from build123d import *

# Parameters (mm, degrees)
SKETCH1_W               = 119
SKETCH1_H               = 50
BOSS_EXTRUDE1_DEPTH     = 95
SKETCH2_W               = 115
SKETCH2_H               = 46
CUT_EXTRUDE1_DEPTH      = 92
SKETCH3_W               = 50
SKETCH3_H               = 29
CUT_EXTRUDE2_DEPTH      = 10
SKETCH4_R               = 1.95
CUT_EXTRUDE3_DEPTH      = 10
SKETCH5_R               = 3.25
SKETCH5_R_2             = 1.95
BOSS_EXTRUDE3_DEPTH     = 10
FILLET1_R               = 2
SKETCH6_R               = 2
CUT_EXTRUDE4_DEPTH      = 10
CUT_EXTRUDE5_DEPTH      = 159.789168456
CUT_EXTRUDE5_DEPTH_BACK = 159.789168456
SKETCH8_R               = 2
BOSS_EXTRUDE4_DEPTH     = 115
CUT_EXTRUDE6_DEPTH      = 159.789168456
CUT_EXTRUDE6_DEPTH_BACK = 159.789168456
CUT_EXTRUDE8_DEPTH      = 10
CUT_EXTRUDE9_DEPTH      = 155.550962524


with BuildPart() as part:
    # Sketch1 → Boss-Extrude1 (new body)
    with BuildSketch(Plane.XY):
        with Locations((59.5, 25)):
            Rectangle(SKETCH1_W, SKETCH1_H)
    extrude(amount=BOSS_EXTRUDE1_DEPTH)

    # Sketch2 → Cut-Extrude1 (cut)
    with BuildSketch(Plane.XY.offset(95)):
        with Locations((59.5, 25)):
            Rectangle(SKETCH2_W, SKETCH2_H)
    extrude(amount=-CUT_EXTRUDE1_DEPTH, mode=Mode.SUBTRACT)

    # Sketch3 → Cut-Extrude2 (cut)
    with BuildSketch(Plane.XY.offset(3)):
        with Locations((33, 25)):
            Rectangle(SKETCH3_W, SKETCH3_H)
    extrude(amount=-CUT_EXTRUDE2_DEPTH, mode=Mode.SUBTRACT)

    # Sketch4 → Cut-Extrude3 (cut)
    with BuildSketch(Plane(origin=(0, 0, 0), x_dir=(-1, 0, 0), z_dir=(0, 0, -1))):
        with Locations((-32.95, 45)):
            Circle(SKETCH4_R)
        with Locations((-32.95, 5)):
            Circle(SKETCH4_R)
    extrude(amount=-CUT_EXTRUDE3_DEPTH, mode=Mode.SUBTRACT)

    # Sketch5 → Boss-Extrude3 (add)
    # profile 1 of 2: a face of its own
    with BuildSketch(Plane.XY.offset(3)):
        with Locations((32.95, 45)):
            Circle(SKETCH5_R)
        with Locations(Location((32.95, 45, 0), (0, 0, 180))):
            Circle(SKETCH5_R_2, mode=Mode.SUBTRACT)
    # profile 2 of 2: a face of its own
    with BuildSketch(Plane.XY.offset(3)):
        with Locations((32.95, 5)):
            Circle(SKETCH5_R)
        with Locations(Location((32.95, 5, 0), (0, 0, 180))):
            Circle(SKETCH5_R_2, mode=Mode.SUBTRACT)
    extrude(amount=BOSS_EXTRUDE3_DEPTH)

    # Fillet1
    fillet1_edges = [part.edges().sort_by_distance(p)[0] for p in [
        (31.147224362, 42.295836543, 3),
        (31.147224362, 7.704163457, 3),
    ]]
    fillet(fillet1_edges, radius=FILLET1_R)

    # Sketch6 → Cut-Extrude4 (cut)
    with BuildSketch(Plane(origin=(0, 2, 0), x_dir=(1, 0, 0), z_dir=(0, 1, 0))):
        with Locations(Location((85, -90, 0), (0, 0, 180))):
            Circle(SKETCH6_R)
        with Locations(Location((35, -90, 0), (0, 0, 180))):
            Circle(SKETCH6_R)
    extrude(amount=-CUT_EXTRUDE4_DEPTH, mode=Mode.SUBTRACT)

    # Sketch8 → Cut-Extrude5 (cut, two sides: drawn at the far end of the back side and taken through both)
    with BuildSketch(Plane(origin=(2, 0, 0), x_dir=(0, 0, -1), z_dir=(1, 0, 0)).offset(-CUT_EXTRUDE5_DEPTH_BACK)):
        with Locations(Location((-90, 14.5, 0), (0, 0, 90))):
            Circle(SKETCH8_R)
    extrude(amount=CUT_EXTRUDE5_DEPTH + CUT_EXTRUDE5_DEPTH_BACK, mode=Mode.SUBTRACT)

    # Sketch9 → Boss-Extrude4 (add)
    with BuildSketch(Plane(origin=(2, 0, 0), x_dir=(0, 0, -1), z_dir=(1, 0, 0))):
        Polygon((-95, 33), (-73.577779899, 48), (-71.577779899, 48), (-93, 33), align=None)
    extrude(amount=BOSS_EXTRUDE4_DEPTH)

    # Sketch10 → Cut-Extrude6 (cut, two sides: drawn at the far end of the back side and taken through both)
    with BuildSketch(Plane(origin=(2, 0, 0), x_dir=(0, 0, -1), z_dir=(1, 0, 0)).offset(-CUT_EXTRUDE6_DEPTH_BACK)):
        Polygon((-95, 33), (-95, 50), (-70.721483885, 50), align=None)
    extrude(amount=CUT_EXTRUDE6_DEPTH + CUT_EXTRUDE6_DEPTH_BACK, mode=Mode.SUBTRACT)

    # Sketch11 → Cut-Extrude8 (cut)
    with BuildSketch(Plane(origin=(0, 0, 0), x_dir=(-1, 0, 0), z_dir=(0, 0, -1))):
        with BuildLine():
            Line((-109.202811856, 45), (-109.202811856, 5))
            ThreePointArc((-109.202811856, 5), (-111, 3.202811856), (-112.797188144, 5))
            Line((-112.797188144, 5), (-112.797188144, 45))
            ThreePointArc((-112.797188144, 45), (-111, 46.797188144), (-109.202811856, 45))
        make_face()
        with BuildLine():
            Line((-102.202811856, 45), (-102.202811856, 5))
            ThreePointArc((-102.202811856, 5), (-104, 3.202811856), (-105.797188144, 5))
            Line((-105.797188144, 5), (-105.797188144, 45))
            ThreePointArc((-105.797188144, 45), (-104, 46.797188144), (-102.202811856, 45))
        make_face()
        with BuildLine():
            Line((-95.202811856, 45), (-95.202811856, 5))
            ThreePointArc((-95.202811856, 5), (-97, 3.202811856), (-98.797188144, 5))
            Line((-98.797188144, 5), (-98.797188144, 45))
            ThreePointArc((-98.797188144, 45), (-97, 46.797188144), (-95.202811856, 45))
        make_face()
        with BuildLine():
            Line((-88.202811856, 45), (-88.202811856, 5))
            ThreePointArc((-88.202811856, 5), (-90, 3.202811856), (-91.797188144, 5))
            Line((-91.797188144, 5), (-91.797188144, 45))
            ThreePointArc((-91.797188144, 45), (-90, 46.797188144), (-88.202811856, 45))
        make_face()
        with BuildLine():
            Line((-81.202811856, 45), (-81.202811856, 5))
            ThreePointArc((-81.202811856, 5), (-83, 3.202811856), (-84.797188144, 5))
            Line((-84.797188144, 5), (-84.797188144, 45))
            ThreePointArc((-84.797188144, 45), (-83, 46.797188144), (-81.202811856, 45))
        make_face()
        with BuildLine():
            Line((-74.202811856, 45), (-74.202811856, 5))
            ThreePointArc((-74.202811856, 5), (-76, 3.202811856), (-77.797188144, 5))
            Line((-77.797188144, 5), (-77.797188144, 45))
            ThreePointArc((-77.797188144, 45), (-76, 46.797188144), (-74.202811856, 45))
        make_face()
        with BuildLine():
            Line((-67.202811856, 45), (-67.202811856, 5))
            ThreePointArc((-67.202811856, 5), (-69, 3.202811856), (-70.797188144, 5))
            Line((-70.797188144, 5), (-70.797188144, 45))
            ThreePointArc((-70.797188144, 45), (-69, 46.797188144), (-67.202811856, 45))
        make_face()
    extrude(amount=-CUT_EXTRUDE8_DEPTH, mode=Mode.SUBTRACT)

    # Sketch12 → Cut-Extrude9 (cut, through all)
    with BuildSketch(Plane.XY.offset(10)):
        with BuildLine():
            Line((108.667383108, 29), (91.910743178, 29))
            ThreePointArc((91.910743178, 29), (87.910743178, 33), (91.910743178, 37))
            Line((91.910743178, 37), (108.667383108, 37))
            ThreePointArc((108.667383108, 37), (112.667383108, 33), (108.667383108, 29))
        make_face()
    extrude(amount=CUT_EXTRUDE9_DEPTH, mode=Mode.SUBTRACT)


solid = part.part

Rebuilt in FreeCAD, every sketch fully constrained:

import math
import FreeCAD as App
import Part
import Sketcher
from FreeCAD import Vector
Q = App.Units.Quantity


def edges_at(feature, points):
    """Names of the edges that pass closest to the given points."""
    edges = feature.Shape.Edges
    near = lambda p: min(range(len(edges)), key=lambda i: edges[i].distToShape(Part.Vertex(*p))[0])
    return sorted({f"Edge{near(p) + 1}" for p in points})


def add_polygon(sketch, points):
    """Adds a closed chain of lines whose ends are joined by coincident constraints."""
    first, n = sketch.GeometryCount, len(points)
    for a, b in zip(points, points[1:] + points[:1]):
        sketch.addGeometry(Part.LineSegment(App.Vector(*a, 0), App.Vector(*b, 0)), False)
    for i in range(n):
        sketch.addConstraint(Sketcher.Constraint("Coincident", first + i, 2, first + (i + 1) % n, 1))

doc = App.newDocument("Part")
body = doc.addObject("PartDesign::Body", "Body")

# Sketch on XY plane
sketch1 = doc.addObject("Sketcher::SketchObject", "Sketch")
body.addObject(sketch1)
sketch1.AttachmentSupport = (doc.XY_Plane, [""])
sketch1.MapMode = "FlatFace"
add_polygon(sketch1, [(0, 50), (0, 0), (119, 0), (119, 50)])  # lines 0-3
sketch1.addConstraint([
    Sketcher.Constraint("Vertical", 0),
    Sketcher.Constraint("Horizontal", 1),
    Sketcher.Constraint("Vertical", 2),
    Sketcher.Constraint("Horizontal", 3),
    Sketcher.Constraint("Coincident", 0, 2, -1, 1),
    Sketcher.Constraint("DistanceX", 1, 1, 1, 2, Q("119 mm")),
    Sketcher.Constraint("DistanceY", 0, 2, 0, 1, Q("50 mm")),
])
pad1 = doc.addObject("PartDesign::Pad", "Pad")
body.addObject(pad1)
pad1.Profile = sketch1
pad1.Length = 95

# Sketch on XY plane
sketch2 = doc.addObject("Sketcher::SketchObject", "Sketch001")
body.addObject(sketch2)
sketch2.AttachmentSupport = (doc.XY_Plane, [""])
sketch2.MapMode = "FlatFace"
sketch2.AttachmentOffset = App.Placement(Vector(0, 0, 95), App.Rotation())
add_polygon(sketch2, [(2, 48), (2, 2), (117, 2), (117, 48)])  # lines 0-3
sketch2.addConstraint([
    Sketcher.Constraint("Vertical", 0),
    Sketcher.Constraint("Horizontal", 1),
    Sketcher.Constraint("Vertical", 2),
    Sketcher.Constraint("Horizontal", 3),
    Sketcher.Constraint("DistanceX", 1, 1, 1, 2, Q("115 mm")),
    Sketcher.Constraint("DistanceY", 0, 2, 0, 1, Q("46 mm")),
    Sketcher.Constraint("DistanceX", -1, 1, 0, 2, Q("2 mm")),
    Sketcher.Constraint("DistanceY", -1, 1, 0, 2, Q("2 mm")),
])
pocket1 = doc.addObject("PartDesign::Pocket", "Pocket")
body.addObject(pocket1)
pocket1.Profile = sketch2
pocket1.Length = 92

# Sketch on XY plane
sketch3 = doc.addObject("Sketcher::SketchObject", "Sketch002")
body.addObject(sketch3)
sketch3.AttachmentSupport = (doc.XY_Plane, [""])
sketch3.MapMode = "FlatFace"
sketch3.AttachmentOffset = App.Placement(Vector(0, 0, 3), App.Rotation())
add_polygon(sketch3, [(8, 40), (8, 10), (58, 10), (58, 40)])  # lines 0-3
sketch3.addConstraint([
    Sketcher.Constraint("Vertical", 0),
    Sketcher.Constraint("Horizontal", 1),
    Sketcher.Constraint("Vertical", 2),
    Sketcher.Constraint("Horizontal", 3),
    Sketcher.Constraint("DistanceX", 1, 1, 1, 2, Q("50 mm")),
    Sketcher.Constraint("DistanceY", 0, 2, 0, 1, Q("29 mm")),
    Sketcher.Constraint("DistanceX", -1, 1, 0, 2, Q("8 mm")),
    Sketcher.Constraint("DistanceY", -1, 1, 0, 2, Q("10.5 mm")),
])
pocket2 = doc.addObject("PartDesign::Pocket", "Pocket001")
body.addObject(pocket2)
pocket2.Profile = sketch3
pocket2.Length = 10

# Sketch on XY plane
sketch4 = doc.addObject("Sketcher::SketchObject", "Sketch003")
body.addObject(sketch4)
sketch4.AttachmentSupport = (doc.XY_Plane, [""])
sketch4.MapMode = "FlatFace"
sketch4.addGeometry([
    Part.Circle(Vector(33, 45, 0), Vector(0, 0, 1), 1.9),
    Part.Circle(Vector(33, 5, 0), Vector(0, 0, 1), 1.9),
], False)
sketch4.addConstraint([
    Sketcher.Constraint("Equal", 0, 1),
    Sketcher.Constraint("Vertical", 0, 3, 1, 3),
    Sketcher.Constraint("Diameter", 0, Q("3.9 mm")),
    Sketcher.Constraint("DistanceY", -1, 1, 0, 3, Q("45 mm")),
    Sketcher.Constraint("DistanceY", -1, 1, 1, 3, Q("5 mm")),
    Sketcher.Constraint("DistanceX", -1, 1, 0, 3, Q("32.95 mm")),
])
pocket3 = doc.addObject("PartDesign::Pocket", "Pocket002")
body.addObject(pocket3)
pocket3.Profile = sketch4
pocket3.Length = 10
pocket3.Reversed = True

# Sketch on XY plane
sketch5 = doc.addObject("Sketcher::SketchObject", "Sketch004")
body.addObject(sketch5)
sketch5.AttachmentSupport = (doc.XY_Plane, [""])
sketch5.MapMode = "FlatFace"
sketch5.AttachmentOffset = App.Placement(Vector(0, 0, 3), App.Rotation())
sketch5.addGeometry([
    Part.Circle(Vector(33, 45, 0), Vector(0, 0, 1), 3.2),
    Part.Circle(Vector(33, 45, 0), Vector(0, 0, 1), 1.9),
    Part.Circle(Vector(33, 5, 0), Vector(0, 0, 1), 3.2),
    Part.Circle(Vector(33, 5, 0), Vector(0, 0, 1), 1.9),
], False)
sketch5.addConstraint([
    Sketcher.Constraint("Coincident", 1, 3, 0, 3),
    Sketcher.Constraint("Coincident", 3, 3, 2, 3),
    Sketcher.Constraint("Equal", 0, 2),
    Sketcher.Constraint("Equal", 1, 3),
    Sketcher.Constraint("Vertical", 1, 3, 2, 3),
    Sketcher.Constraint("Diameter", 0, Q("6.5 mm")),
    Sketcher.Constraint("Diameter", 1, Q("3.9 mm")),
    Sketcher.Constraint("DistanceY", -1, 1, 0, 3, Q("45 mm")),
    Sketcher.Constraint("DistanceY", -1, 1, 2, 3, Q("5 mm")),
    Sketcher.Constraint("DistanceX", -1, 1, 0, 3, Q("32.95 mm")),
])
pad2 = doc.addObject("PartDesign::Pad", "Pad001")
body.addObject(pad2)
pad2.Profile = sketch5
pad2.Length = 10
doc.recompute()

fillet = doc.addObject("PartDesign::Fillet", "Fillet")
body.addObject(fillet)
fillet.Base = (pad2, edges_at(pad2, [(32.95, 41.75, 3), (32.95, 8.25, 3)]))
fillet.Radius = 2

# Sketch on XZ plane
sketch6 = doc.addObject("Sketcher::SketchObject", "Sketch005")
body.addObject(sketch6)
sketch6.AttachmentSupport = (doc.XZ_Plane, [""])
sketch6.MapMode = "FlatFace"
sketch6.AttachmentOffset = App.Placement(Vector(0, 0, -2), App.Rotation())
sketch6.addGeometry([
    Part.Circle(Vector(85, 90, 0), Vector(0, 0, 1), 2),
    Part.Circle(Vector(35, 90, 0), Vector(0, 0, 1), 2),
], False)
sketch6.addConstraint([
    Sketcher.Constraint("Equal", 0, 1),
    Sketcher.Constraint("Horizontal", 0, 3, 1, 3),
    Sketcher.Constraint("Diameter", 0, Q("4 mm")),
    Sketcher.Constraint("DistanceX", -1, 1, 0, 3, Q("85 mm")),
    Sketcher.Constraint("DistanceY", -1, 1, 0, 3, Q("90 mm")),
    Sketcher.Constraint("DistanceX", -1, 1, 1, 3, Q("35 mm")),
])
pocket4 = doc.addObject("PartDesign::Pocket", "Pocket003")
body.addObject(pocket4)
pocket4.Profile = sketch6
pocket4.Length = 10
pocket4.Reversed = True

# Sketch on YZ plane
sketch7 = doc.addObject("Sketcher::SketchObject", "Sketch006")
body.addObject(sketch7)
sketch7.AttachmentSupport = (doc.YZ_Plane, [""])
sketch7.MapMode = "FlatFace"
sketch7.AttachmentOffset = App.Placement(Vector(0, 0, 2), App.Rotation())
sketch7.addGeometry(Part.Circle(Vector(14.5, 90, 0), Vector(0, 0, 1), 2), False)
sketch7.addConstraint([
    Sketcher.Constraint("Diameter", 0, Q("4 mm")),
    Sketcher.Constraint("DistanceY", -1, 1, 0, 3, Q("90 mm")),
    Sketcher.Constraint("DistanceX", -1, 1, 0, 3, Q("14.5 mm")),
])
pocket5 = doc.addObject("PartDesign::Pocket", "Pocket004")
body.addObject(pocket5)
pocket5.Profile = sketch7
pocket5.Type = "ThroughAll"
pocket5.Midplane = True

# Sketch on YZ plane
sketch8 = doc.addObject("Sketcher::SketchObject", "Sketch007")
body.addObject(sketch8)
sketch8.AttachmentSupport = (doc.YZ_Plane, [""])
sketch8.MapMode = "FlatFace"
sketch8.AttachmentOffset = App.Placement(Vector(0, 0, 2), App.Rotation())
add_polygon(sketch8, [(48, 73.6), (33, 95), (33, 93), (48, 71.6)])  # lines 0-3
sketch8.addConstraint([
    Sketcher.Constraint("Vertical", 1),
    Sketcher.Constraint("Vertical", 3),
    Sketcher.Constraint("Parallel", 0, 2),
    Sketcher.Constraint("DistanceY", 1, 2, 1, 1, Q("2 mm")),
    Sketcher.Constraint("Angle", 0, Q("125 deg")),
    Sketcher.Constraint("DistanceX", -1, 1, 0, 2, Q("33 mm")),
    Sketcher.Constraint("DistanceY", -1, 1, 0, 2, Q("95 mm")),
    Sketcher.Constraint("DistanceX", -1, 1, 2, 2, Q("48 mm")),
])
pad3 = doc.addObject("PartDesign::Pad", "Pad002")
body.addObject(pad3)
pad3.Profile = sketch8
pad3.Length = 115

# Sketch on YZ plane
sketch9 = doc.addObject("Sketcher::SketchObject", "Sketch008")
body.addObject(sketch9)
sketch9.AttachmentSupport = (doc.YZ_Plane, [""])
sketch9.MapMode = "FlatFace"
sketch9.AttachmentOffset = App.Placement(Vector(0, 0, 2), App.Rotation())
add_polygon(sketch9, [(50, 95), (33, 95), (50, 71)])  # lines 0-2
sketch9.addConstraint([
    Sketcher.Constraint("Horizontal", 0),
    Sketcher.Constraint("Vertical", 2),
    Sketcher.Constraint("DistanceX", 0, 2, 0, 1, Q("17 mm")),
    Sketcher.Constraint("Angle", 1, Q("-55 deg")),
    Sketcher.Constraint("DistanceX", -1, 1, 0, 2, Q("33 mm")),
    Sketcher.Constraint("DistanceY", -1, 1, 0, 2, Q("95 mm")),
])
pocket6 = doc.addObject("PartDesign::Pocket", "Pocket005")
body.addObject(pocket6)
pocket6.Profile = sketch9
pocket6.Type = "ThroughAll"
pocket6.Midplane = True

# Sketch on XY plane
sketch10 = doc.addObject("Sketcher::SketchObject", "Sketch009")
body.addObject(sketch10)
sketch10.AttachmentSupport = (doc.XY_Plane, [""])
sketch10.MapMode = "FlatFace"
sketch10.addGeometry([
    Part.LineSegment(Vector(109.2, 5, 0), Vector(109.2, 45, 0)),  # 0
    Part.ArcOfCircle(Part.Circle(Vector(111, 45, 0), Vector(0, 0, 1), 1.8), math.radians(0), math.radians(180)),  # 1
    Part.LineSegment(Vector(112.8, 45, 0), Vector(112.8, 5, 0)),  # 2
    Part.ArcOfCircle(Part.Circle(Vector(111, 5, 0), Vector(0, 0, 1), 1.8), math.radians(180), math.radians(360)),  # 3
    Part.LineSegment(Vector(102.2, 5, 0), Vector(102.2, 45, 0)),  # 4
    Part.ArcOfCircle(Part.Circle(Vector(104, 45, 0), Vector(0, 0, 1), 1.8), math.radians(0), math.radians(180)),  # 5
    Part.LineSegment(Vector(105.8, 45, 0), Vector(105.8, 5, 0)),  # 6
    Part.ArcOfCircle(Part.Circle(Vector(104, 5, 0), Vector(0, 0, 1), 1.8), math.radians(180), math.radians(360)),  # 7
    Part.LineSegment(Vector(95.2, 5, 0), Vector(95.2, 45, 0)),  # 8
    Part.ArcOfCircle(Part.Circle(Vector(97, 45, 0), Vector(0, 0, 1), 1.8), math.radians(0), math.radians(180)),  # 9
    Part.LineSegment(Vector(98.8, 45, 0), Vector(98.8, 5, 0)),  # 10
    Part.ArcOfCircle(Part.Circle(Vector(97, 5, 0), Vector(0, 0, 1), 1.8), math.radians(180), math.radians(360)),  # 11
    Part.LineSegment(Vector(88.2, 5, 0), Vector(88.2, 45, 0)),  # 12
    Part.ArcOfCircle(Part.Circle(Vector(90, 45, 0), Vector(0, 0, 1), 1.8), math.radians(0), math.radians(180)),  # 13
    Part.LineSegment(Vector(91.8, 45, 0), Vector(91.8, 5, 0)),  # 14
    Part.ArcOfCircle(Part.Circle(Vector(90, 5, 0), Vector(0, 0, 1), 1.8), math.radians(180), math.radians(360)),  # 15
    Part.LineSegment(Vector(81.2, 5, 0), Vector(81.2, 45, 0)),  # 16
    Part.ArcOfCircle(Part.Circle(Vector(83, 45, 0), Vector(0, 0, 1), 1.8), math.radians(0), math.radians(180)),  # 17
    Part.LineSegment(Vector(84.8, 45, 0), Vector(84.8, 5, 0)),  # 18
    Part.ArcOfCircle(Part.Circle(Vector(83, 5, 0), Vector(0, 0, 1), 1.8), math.radians(180), math.radians(360)),  # 19
    Part.LineSegment(Vector(74.2, 5, 0), Vector(74.2, 45, 0)),  # 20
    Part.ArcOfCircle(Part.Circle(Vector(76, 45, 0), Vector(0, 0, 1), 1.8), math.radians(0), math.radians(180)),  # 21
    Part.LineSegment(Vector(77.8, 45, 0), Vector(77.8, 5, 0)),  # 22
    Part.ArcOfCircle(Part.Circle(Vector(76, 5, 0), Vector(0, 0, 1), 1.8), math.radians(180), math.radians(360)),  # 23
    Part.LineSegment(Vector(67.2, 5, 0), Vector(67.2, 45, 0)),  # 24
    Part.ArcOfCircle(Part.Circle(Vector(69, 45, 0), Vector(0, 0, 1), 1.8), math.radians(0), math.radians(180)),  # 25
    Part.LineSegment(Vector(70.8, 45, 0), Vector(70.8, 5, 0)),  # 26
    Part.ArcOfCircle(Part.Circle(Vector(69, 5, 0), Vector(0, 0, 1), 1.8), math.radians(180), math.radians(360)),  # 27
], False)
sketch10.addConstraint([
    Sketcher.Constraint("Tangent", 0, 2, 1, 2),
    Sketcher.Constraint("Tangent", 1, 1, 2, 1),
    Sketcher.Constraint("Tangent", 2, 2, 3, 2),
    Sketcher.Constraint("Tangent", 3, 1, 0, 1),
    Sketcher.Constraint("Tangent", 4, 2, 5, 2),
    Sketcher.Constraint("Tangent", 5, 1, 6, 1),
    Sketcher.Constraint("Tangent", 6, 2, 7, 2),
    Sketcher.Constraint("Tangent", 7, 1, 4, 1),
    Sketcher.Constraint("Tangent", 8, 2, 9, 2),
    Sketcher.Constraint("Tangent", 9, 1, 10, 1),
    Sketcher.Constraint("Tangent", 10, 2, 11, 2),
    Sketcher.Constraint("Tangent", 11, 1, 8, 1),
    Sketcher.Constraint("Tangent", 12, 2, 13, 2),
    Sketcher.Constraint("Tangent", 13, 1, 14, 1),
    Sketcher.Constraint("Tangent", 14, 2, 15, 2),
    Sketcher.Constraint("Tangent", 15, 1, 12, 1),
    Sketcher.Constraint("Tangent", 16, 2, 17, 2),
    Sketcher.Constraint("Tangent", 17, 1, 18, 1),
    Sketcher.Constraint("Tangent", 18, 2, 19, 2),
    Sketcher.Constraint("Tangent", 19, 1, 16, 1),
    Sketcher.Constraint("Tangent", 20, 2, 21, 2),
    Sketcher.Constraint("Tangent", 21, 1, 22, 1),
    Sketcher.Constraint("Tangent", 22, 2, 23, 2),
    Sketcher.Constraint("Tangent", 23, 1, 20, 1),
    Sketcher.Constraint("Tangent", 24, 2, 25, 2),
    Sketcher.Constraint("Tangent", 25, 1, 26, 1),
    Sketcher.Constraint("Tangent", 26, 2, 27, 2),
    Sketcher.Constraint("Tangent", 27, 1, 24, 1),
    Sketcher.Constraint("Vertical", 0),
    Sketcher.Constraint("Vertical", 2),
    Sketcher.Constraint("Vertical", 4),
    Sketcher.Constraint("Vertical", 6),
    Sketcher.Constraint("Vertical", 8),
    Sketcher.Constraint("Vertical", 10),
    Sketcher.Constraint("Vertical", 12),
    Sketcher.Constraint("Vertical", 14),
    Sketcher.Constraint("Vertical", 16),
    Sketcher.Constraint("Vertical", 18),
    Sketcher.Constraint("Vertical", 20),
    Sketcher.Constraint("Vertical", 22),
    Sketcher.Constraint("Vertical", 24),
    Sketcher.Constraint("Vertical", 26),
    Sketcher.Constraint("Equal", 3, 5),
    Sketcher.Constraint("Equal", 7, 9),
    Sketcher.Constraint("Equal", 11, 13),
    Sketcher.Constraint("Equal", 15, 17),
    Sketcher.Constraint("Equal", 19, 21),
    Sketcher.Constraint("Equal", 23, 25),
    Sketcher.Constraint("Horizontal", 1, 3, 5, 3),
    Sketcher.Constraint("Horizontal", 3, 3, 7, 3),
    Sketcher.Constraint("Horizontal", 5, 3, 9, 3),
    Sketcher.Constraint("Horizontal", 7, 3, 11, 3),
    Sketcher.Constraint("Horizontal", 9, 3, 13, 3),
    Sketcher.Constraint("Horizontal", 11, 3, 15, 3),
    Sketcher.Constraint("Horizontal", 13, 3, 17, 3),
    Sketcher.Constraint("Horizontal", 15, 3, 19, 3),
    Sketcher.Constraint("Horizontal", 17, 3, 21, 3),
    Sketcher.Constraint("Horizontal", 19, 3, 23, 3),
    Sketcher.Constraint("Horizontal", 21, 3, 25, 3),
    Sketcher.Constraint("Horizontal", 23, 3, 27, 3),
    Sketcher.Constraint("DistanceY", 0, 1, 0, 2, Q("40 mm")),
    Sketcher.Constraint("DistanceX", -1, 1, 1, 3, Q("111 mm")),
    Sketcher.Constraint("DistanceY", -1, 1, 1, 3, Q("45 mm")),
    Sketcher.Constraint("DistanceX", -1, 1, 5, 3, Q("104 mm")),
    Sketcher.Constraint("DistanceX", -1, 1, 9, 3, Q("97 mm")),
    Sketcher.Constraint("DistanceX", -1, 1, 13, 3, Q("90 mm")),
    Sketcher.Constraint("DistanceX", -1, 1, 17, 3, Q("83 mm")),
    Sketcher.Constraint("DistanceX", -1, 1, 21, 3, Q("76 mm")),
    Sketcher.Constraint("DistanceX", -1, 1, 25, 3, Q("69 mm")),
    Sketcher.Constraint("Radius", 1, Q("1.797188 mm")),
])
pocket7 = doc.addObject("PartDesign::Pocket", "Pocket006")
body.addObject(pocket7)
pocket7.Profile = sketch10
pocket7.Length = 10
pocket7.Reversed = True

# Sketch on XY plane
sketch11 = doc.addObject("Sketcher::SketchObject", "Sketch010")
body.addObject(sketch11)
sketch11.AttachmentSupport = (doc.XY_Plane, [""])
sketch11.MapMode = "FlatFace"
sketch11.AttachmentOffset = App.Placement(Vector(0, 0, 10), App.Rotation())
sketch11.addGeometry([
    Part.LineSegment(Vector(91.9, 29, 0), Vector(108.7, 29, 0)),
    Part.ArcOfCircle(Part.Circle(Vector(108.7, 33, 0), Vector(0, 0, 1), 4), math.radians(-90), math.radians(90)),
    Part.LineSegment(Vector(108.7, 37, 0), Vector(91.9, 37, 0)),
    Part.ArcOfCircle(Part.Circle(Vector(91.9, 33, 0), Vector(0, 0, 1), 4), math.radians(90), math.radians(270)),
], False)
sketch11.addConstraint([
    Sketcher.Constraint("Tangent", 0, 2, 1, 1),
    Sketcher.Constraint("Tangent", 1, 2, 2, 1),
    Sketcher.Constraint("Tangent", 2, 2, 3, 1),
    Sketcher.Constraint("Tangent", 3, 2, 0, 1),
    Sketcher.Constraint("Horizontal", 0),
    Sketcher.Constraint("Horizontal", 2),
    Sketcher.Constraint("Radius", 1, Q("4 mm")),
    Sketcher.Constraint("DistanceY", -1, 1, 1, 3, Q("33 mm")),
    Sketcher.Constraint("DistanceX", 0, 1, 0, 2, Q("16.75664 mm")),
    Sketcher.Constraint("DistanceX", -1, 1, 1, 3, Q("108.667383 mm")),
])
pocket8 = doc.addObject("PartDesign::Pocket", "Pocket007")
body.addObject(pocket8)
pocket8.Profile = sketch11
pocket8.Type = "ThroughAll"
pocket8.Reversed = True

doc.recompute()
